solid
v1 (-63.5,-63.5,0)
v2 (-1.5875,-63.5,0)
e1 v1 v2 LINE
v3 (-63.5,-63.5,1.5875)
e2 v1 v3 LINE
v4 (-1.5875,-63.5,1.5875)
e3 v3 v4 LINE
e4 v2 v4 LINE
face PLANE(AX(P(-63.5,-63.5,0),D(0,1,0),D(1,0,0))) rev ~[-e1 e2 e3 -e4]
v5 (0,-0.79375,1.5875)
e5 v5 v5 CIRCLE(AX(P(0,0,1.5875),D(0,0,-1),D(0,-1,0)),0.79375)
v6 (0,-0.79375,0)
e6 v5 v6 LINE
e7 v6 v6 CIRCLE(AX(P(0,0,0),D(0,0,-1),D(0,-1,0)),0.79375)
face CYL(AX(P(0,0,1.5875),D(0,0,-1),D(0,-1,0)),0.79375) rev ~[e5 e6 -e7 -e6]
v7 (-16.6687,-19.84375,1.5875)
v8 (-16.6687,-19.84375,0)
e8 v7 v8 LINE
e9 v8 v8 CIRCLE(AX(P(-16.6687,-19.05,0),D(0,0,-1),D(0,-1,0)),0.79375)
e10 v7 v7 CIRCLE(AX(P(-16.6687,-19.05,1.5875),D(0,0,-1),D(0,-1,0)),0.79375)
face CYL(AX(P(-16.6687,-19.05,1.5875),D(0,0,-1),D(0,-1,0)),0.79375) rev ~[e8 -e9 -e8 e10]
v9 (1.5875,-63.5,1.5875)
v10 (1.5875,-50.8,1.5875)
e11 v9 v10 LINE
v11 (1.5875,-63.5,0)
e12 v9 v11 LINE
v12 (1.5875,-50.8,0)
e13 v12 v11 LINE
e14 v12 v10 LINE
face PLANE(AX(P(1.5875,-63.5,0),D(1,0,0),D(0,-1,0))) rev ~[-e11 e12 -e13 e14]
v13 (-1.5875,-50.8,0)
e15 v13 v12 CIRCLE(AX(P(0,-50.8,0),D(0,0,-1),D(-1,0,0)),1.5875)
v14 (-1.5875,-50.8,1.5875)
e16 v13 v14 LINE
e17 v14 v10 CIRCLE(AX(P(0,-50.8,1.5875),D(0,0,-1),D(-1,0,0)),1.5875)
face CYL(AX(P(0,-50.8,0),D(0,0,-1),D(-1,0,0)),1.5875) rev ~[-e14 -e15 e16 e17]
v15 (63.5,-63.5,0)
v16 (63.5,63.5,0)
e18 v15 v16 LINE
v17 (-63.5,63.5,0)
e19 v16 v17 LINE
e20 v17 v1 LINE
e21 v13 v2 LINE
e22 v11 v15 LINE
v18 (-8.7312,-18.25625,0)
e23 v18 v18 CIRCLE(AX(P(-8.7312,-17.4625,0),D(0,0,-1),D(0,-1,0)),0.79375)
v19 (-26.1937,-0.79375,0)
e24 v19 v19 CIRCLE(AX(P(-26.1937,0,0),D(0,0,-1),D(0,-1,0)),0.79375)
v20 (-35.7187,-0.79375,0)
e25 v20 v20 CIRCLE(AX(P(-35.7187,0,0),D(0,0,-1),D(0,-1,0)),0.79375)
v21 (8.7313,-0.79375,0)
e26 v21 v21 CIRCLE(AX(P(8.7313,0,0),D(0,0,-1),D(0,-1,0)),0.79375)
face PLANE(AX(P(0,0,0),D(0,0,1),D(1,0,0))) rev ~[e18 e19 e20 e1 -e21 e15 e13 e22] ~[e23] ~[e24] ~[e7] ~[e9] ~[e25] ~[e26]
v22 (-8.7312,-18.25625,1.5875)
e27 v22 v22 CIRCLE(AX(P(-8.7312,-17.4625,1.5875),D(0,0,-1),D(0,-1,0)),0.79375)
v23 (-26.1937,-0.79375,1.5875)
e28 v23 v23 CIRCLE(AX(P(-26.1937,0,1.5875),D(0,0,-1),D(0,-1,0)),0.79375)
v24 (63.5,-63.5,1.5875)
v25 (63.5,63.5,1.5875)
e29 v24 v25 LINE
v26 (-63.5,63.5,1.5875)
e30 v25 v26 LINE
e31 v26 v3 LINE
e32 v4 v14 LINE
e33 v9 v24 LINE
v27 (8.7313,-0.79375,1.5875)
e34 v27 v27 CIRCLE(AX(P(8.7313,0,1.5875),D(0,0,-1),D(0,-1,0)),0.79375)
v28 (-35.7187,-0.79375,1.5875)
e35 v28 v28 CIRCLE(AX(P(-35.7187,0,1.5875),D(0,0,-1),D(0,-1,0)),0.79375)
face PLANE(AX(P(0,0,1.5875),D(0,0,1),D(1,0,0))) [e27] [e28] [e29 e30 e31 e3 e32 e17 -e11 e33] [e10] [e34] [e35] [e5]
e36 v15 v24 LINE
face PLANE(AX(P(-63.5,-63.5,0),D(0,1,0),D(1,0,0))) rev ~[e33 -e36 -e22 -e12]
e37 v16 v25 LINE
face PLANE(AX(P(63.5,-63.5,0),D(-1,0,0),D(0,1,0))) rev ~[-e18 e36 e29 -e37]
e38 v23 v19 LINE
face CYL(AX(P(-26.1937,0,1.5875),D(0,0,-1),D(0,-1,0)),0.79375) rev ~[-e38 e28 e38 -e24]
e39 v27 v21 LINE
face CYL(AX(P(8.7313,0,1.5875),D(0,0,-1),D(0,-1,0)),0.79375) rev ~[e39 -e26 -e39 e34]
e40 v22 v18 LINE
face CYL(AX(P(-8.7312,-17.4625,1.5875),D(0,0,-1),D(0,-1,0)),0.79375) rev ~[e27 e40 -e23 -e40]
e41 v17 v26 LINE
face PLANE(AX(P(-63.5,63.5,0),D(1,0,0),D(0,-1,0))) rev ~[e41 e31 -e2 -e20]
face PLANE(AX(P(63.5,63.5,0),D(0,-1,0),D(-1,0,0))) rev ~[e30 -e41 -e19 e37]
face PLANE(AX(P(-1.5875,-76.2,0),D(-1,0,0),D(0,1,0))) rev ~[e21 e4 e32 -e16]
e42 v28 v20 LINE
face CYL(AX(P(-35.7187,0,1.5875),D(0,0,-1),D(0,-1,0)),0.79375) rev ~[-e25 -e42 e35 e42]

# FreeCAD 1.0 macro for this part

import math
import FreeCAD as App
import Part
import Sketcher
Q = App.Units.Quantity

doc = App.newDocument("Part")
body = doc.addObject("PartDesign::Body", "Body")

sketch1 = body.newObject("Sketcher::SketchObject", "Sketch")
sketch1.AttachmentSupport = (doc.getObject("XY_Plane"), [""])
sketch1.MapMode = "FlatFace"
sketch1.addGeometry(Part.LineSegment(App.Vector(-64, 64, 0), App.Vector(-64, -64, 0)), False)
sketch1.addGeometry(Part.LineSegment(App.Vector(-64, -64, 0), App.Vector(64, -64, 0)), False)
sketch1.addGeometry(Part.LineSegment(App.Vector(64, -64, 0), App.Vector(64, 64, 0)), False)
sketch1.addGeometry(Part.LineSegment(App.Vector(64, 64, 0), App.Vector(-64, 64, 0)), False)
sketch1.addConstraint(Sketcher.Constraint("Coincident", 0, 2, 1, 1))
sketch1.addConstraint(Sketcher.Constraint("Coincident", 1, 2, 2, 1))
sketch1.addConstraint(Sketcher.Constraint("Coincident", 2, 2, 3, 1))
sketch1.addConstraint(Sketcher.Constraint("Coincident", 3, 2, 0, 1))
sketch1.addConstraint(Sketcher.Constraint("Vertical", 0))
sketch1.addConstraint(Sketcher.Constraint("Horizontal", 1))
sketch1.addConstraint(Sketcher.Constraint("Vertical", 2))
sketch1.addConstraint(Sketcher.Constraint("Horizontal", 3))
sketch1.addConstraint(Sketcher.Constraint("Symmetric", 0, 2, 2, 2, -1, 1))
sketch1.addConstraint(Sketcher.Constraint("Equal", 3, 0))
sketch1.addConstraint(Sketcher.Constraint("DistanceX", 1, 1, 1, 2, Q("5 in")))
pad1 = body.newObject("PartDesign::Pad", "Pad")
pad1.Profile = sketch1
pad1.Length = Q("0.0625 in")

sketch2 = body.newObject("Sketcher::SketchObject", "Sketch001")
sketch2.AttachmentSupport = (doc.getObject("XY_Plane"), [""])
sketch2.MapMode = "FlatFace"
sketch2.addGeometry(Part.LineSegment(App.Vector(-1.6, -76.2, 0), App.Vector(-1.6, -50.8, 0)), False)
sketch2.addGeometry(Part.ArcOfCircle(Part.Circle(App.Vector(0, -50.8, 0), App.Vector(0, 0, 1), 1.6), math.radians(0), math.radians(180)), False)
sketch2.addGeometry(Part.LineSegment(App.Vector(1.6, -50.8, 0), App.Vector(1.6, -76.2, 0)), False)
sketch2.addGeometry(Part.ArcOfCircle(Part.Circle(App.Vector(0, -76.2, 0), App.Vector(0, 0, 1), 1.6), math.radians(180), math.radians(360)), False)
sketch2.addConstraint(Sketcher.Constraint("Tangent", 0, 2, 1, 2))
sketch2.addConstraint(Sketcher.Constraint("Tangent", 1, 1, 2, 1))
sketch2.addConstraint(Sketcher.Constraint("Tangent", 2, 2, 3, 2))
sketch2.addConstraint(Sketcher.Constraint("Tangent", 3, 1, 0, 1))
sketch2.addConstraint(Sketcher.Constraint("Vertical", 0))
sketch2.addConstraint(Sketcher.Constraint("Vertical", 2))
sketch2.addConstraint(Sketcher.Constraint("PointOnObject", 1, 3, -2))
sketch2.addConstraint(Sketcher.Constraint("Radius", 1, Q("0.0625 in")))
sketch2.addConstraint(Sketcher.Constraint("DistanceY", 0, 1, 0, 2, Q("1 in")))
sketch2.addConstraint(Sketcher.Constraint("DistanceY", 1, 3, -1, 1, Q("2 in")))
pocket1 = body.newObject("PartDesign::Pocket", "Pocket")
pocket1.Profile = sketch2
pocket1.Length = Q("0.0625 in")
pocket1.Reversed = True

sketch3 = body.newObject("Sketcher::SketchObject", "Sketch002")
sketch3.AttachmentSupport = (doc.getObject("XY_Plane"), [""])
sketch3.MapMode = "FlatFace"
sketch3.AttachmentOffset = App.Placement(App.Vector(0, 0, 0.0625 * 25.4), App.Rotation())
sketch3.addGeometry(Part.Circle(App.Vector(-35.7, 0, 0), App.Vector(0, 0, 1), 0.8), False)
sketch3.addGeometry(Part.Circle(App.Vector(-16.7, -19.1, 0), App.Vector(0, 0, 1), 0.8), False)
sketch3.addGeometry(Part.Circle(App.Vector(-26.2, 0, 0), App.Vector(0, 0, 1), 0.8), False)
sketch3.addGeometry(Part.Circle(App.Vector(-8.7, -17.5, 0), App.Vector(0, 0, 1), 0.8), False)
sketch3.addGeometry(Part.Circle(App.Vector(8.7, 0, 0), App.Vector(0, 0, 1), 0.8), False)
sketch3.addGeometry(Part.Circle(App.Vector(0, 0, 0), App.Vector(0, 0, 1), 0.8), False)
sketch3.addConstraint(Sketcher.Constraint("Coincident", 5, 3, -1, 1))
sketch3.addConstraint(Sketcher.Constraint("Equal", 0, 1))
sketch3.addConstraint(Sketcher.Constraint("Equal", 1, 2))
sketch3.addConstraint(Sketcher.Constraint("Equal", 2, 3))
sketch3.addConstraint(Sketcher.Constraint("Equal", 3, 4))
sketch3.addConstraint(Sketcher.Constraint("Equal", 4, 5))
sketch3.addConstraint(Sketcher.Constraint("PointOnObject", 0, 3, -1))
sketch3.addConstraint(Sketcher.Constraint("PointOnObject", 2, 3, -1))
sketch3.addConstraint(Sketcher.Constraint("PointOnObject", 4, 3, -1))
sketch3.addConstraint(Sketcher.Constraint("Diameter", 0, Q("0.0625 in")))
sketch3.addConstraint(Sketcher.Constraint("DistanceX", 1, 3, 4, 3, Q("1 in")))
sketch3.addConstraint(Sketcher.Constraint("DistanceY", 1, 3, -1, 1, Q("0.75 in")))
sketch3.addConstraint(Sketcher.Constraint("DistanceX", 0, 3, 1, 3, Q("0.75 in")))
sketch3.addConstraint(Sketcher.Constraint("DistanceX", 0, 3, -1, 1, Q("1.406248 in")))
sketch3.addConstraint(Sketcher.Constraint("DistanceX", 2, 3, -1, 1, Q("1.031248 in")))
sketch3.addConstraint(Sketcher.Constraint("DistanceX", 3, 3, -1, 1, Q("0.343748 in")))
sketch3.addConstraint(Sketcher.Constraint("DistanceY", 3, 3, -1, 1, Q("0.6875 in")))
doc.recompute()
hole = body.newObject("PartDesign::Hole", "Hole")
hole.Profile = sketch3
hole.ThreadType = "None"
hole.Diameter = Q("0.0625 in")
hole.DepthType = "Dimension"
hole.Depth = Q("1 in")
hole.DrillPoint = "Angled"
hole.DrillPointAngle = 118

doc.recompute()
